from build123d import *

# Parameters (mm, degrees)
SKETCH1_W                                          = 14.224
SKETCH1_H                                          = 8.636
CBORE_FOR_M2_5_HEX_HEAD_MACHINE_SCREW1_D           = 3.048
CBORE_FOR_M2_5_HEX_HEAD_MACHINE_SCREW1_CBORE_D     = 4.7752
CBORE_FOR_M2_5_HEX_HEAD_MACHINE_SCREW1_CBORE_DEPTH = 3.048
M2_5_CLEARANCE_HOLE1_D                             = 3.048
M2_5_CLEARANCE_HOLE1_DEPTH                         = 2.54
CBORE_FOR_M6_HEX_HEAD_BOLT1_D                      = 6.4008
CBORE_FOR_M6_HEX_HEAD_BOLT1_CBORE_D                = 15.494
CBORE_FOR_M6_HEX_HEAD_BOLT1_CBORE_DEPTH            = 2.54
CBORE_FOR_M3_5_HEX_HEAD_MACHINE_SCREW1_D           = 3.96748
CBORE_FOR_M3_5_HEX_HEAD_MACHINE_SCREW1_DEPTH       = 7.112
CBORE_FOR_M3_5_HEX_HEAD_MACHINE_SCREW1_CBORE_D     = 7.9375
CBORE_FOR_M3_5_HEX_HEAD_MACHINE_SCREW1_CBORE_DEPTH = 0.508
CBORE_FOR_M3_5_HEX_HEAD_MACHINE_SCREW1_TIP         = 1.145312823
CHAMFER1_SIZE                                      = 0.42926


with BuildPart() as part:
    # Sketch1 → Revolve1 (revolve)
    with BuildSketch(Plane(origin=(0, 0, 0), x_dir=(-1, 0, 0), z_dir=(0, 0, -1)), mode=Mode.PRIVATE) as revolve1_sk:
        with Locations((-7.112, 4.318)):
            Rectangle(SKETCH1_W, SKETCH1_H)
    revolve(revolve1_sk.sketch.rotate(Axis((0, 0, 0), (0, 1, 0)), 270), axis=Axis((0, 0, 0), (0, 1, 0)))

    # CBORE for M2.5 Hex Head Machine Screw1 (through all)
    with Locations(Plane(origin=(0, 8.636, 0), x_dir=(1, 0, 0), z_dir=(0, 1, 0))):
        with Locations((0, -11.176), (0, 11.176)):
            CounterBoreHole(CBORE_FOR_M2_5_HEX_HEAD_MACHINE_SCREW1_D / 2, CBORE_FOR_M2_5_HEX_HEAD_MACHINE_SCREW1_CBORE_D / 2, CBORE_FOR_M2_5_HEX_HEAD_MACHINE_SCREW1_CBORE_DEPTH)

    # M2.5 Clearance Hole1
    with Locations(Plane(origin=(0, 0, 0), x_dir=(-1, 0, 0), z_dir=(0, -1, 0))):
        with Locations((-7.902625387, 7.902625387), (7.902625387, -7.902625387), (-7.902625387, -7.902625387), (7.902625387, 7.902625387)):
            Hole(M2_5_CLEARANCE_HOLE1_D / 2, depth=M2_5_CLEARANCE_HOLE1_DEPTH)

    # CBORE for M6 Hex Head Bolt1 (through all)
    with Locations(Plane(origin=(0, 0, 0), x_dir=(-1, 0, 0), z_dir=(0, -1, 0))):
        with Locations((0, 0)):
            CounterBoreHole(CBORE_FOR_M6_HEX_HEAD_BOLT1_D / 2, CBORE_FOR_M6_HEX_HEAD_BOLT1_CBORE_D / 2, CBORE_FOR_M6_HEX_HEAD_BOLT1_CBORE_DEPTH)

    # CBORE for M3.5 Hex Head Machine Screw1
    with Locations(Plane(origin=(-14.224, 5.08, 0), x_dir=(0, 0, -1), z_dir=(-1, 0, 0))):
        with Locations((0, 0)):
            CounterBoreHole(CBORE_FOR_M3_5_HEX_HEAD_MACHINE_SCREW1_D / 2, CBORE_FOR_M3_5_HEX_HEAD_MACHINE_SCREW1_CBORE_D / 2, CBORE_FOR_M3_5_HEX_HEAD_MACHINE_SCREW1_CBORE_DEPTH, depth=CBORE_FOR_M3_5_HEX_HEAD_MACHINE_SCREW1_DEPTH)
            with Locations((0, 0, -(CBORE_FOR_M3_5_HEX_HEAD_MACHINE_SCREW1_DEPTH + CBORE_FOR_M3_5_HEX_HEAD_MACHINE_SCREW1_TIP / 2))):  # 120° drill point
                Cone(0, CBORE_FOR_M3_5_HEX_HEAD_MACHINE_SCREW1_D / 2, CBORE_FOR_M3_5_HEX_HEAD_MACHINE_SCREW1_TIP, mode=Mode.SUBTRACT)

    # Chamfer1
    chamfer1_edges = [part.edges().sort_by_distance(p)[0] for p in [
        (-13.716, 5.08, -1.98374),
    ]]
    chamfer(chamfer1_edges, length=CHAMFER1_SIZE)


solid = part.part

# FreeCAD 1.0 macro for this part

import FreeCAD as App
import Part
import Sketcher
from FreeCAD import Vector
Q = App.Units.Quantity


def edges_at(feature, points):
    """Names of the edges that pass closest to the given points."""
    edges = feature.Shape.Edges
    near = lambda p: min(range(len(edges)), key=lambda i: edges[i].distToShape(Part.Vertex(*p))[0])
    return sorted({f"Edge{near(p) + 1}" for p in points})


def add_polygon(sketch, points):
    """Adds a closed chain of lines whose ends are joined by coincident constraints."""
    first, n = sketch.GeometryCount, len(points)
    for a, b in zip(points, points[1:] + points[:1]):
        sketch.addGeometry(Part.LineSegment(App.Vector(*a, 0), App.Vector(*b, 0)), False)
    for i in range(n):
        sketch.addConstraint(Sketcher.Constraint("Coincident", first + i, 2, first + (i + 1) % n, 1))

doc = App.newDocument("Part")
params = doc.addObject("Spreadsheet::Sheet", "Params")
for row, (alias, value) in enumerate([
    ("sketch1_width", "0.56 in"),
    ("sketch1_height", "0.34 in"),
    ("revolution_angle", "360 deg"),
    ("sketch2_diameter", "0.12 in"),
    ("hole_diameter", "0.12 in"),
    ("hole_cbore_diameter", "0.188 in"),
    ("hole_cbore_depth", "0.12 in"),
    ("sketch3_diameter", "0.12 in"),
    ("hole2_diameter", "0.12 in"),
    ("hole2_depth", "0.1 in"),
    ("sketch4_diameter", "0.252 in"),
    ("hole3_diameter", "0.252 in"),
    ("hole3_cbore_diameter", "0.61 in"),
    ("hole3_cbore_depth", "0.1 in"),
    ("hole4_diameter", "0.1562 in"),
    ("hole4_depth", "0.28 in"),
    ("hole4_cbore_diameter", "0.3125 in"),
    ("hole4_cbore_depth", "0.02 in"),
    ("chamfer_size", "0.0169 in"),
], start=1):
    params.set(f"A{row}", alias)
    params.set(f"B{row}", "=" + value)
    params.setAlias(f"B{row}", alias)

body = doc.addObject("PartDesign::Body", "Body")

# Sketch on XY plane
sketch1 = doc.addObject("Sketcher::SketchObject", "Sketch")
body.addObject(sketch1)
sketch1.AttachmentSupport = (doc.XY_Plane, [""])
sketch1.MapMode = "FlatFace"
add_polygon(sketch1, [(14.224, 8.636), (14.224, 0), (0, 0), (0, 8.636)])  # lines 0-3
sketch1.addConstraint([
    Sketcher.Constraint("Vertical", 0),
    Sketcher.Constraint("Horizontal", 1),
    Sketcher.Constraint("Vertical", 2),
    Sketcher.Constraint("Horizontal", 3),
    Sketcher.Constraint("Coincident", 1, 2, -1, 1),
    Sketcher.Constraint("DistanceX", 1, 2, 1, 1, Q("0.56 in")),
    Sketcher.Constraint("DistanceY", 0, 2, 0, 1, Q("0.34 in")),
])
sketch1.setExpression("Constraints[9]", "Params.sketch1_width")
sketch1.setExpression("Constraints[10]", "Params.sketch1_height")
revolution = doc.addObject("PartDesign::Revolution", "Revolution")
body.addObject(revolution)
revolution.Profile = sketch1
revolution.ReferenceAxis = (sketch1, ["V_Axis"])
revolution.setExpression("Angle", "Params.revolution_angle")

# Sketch on XZ plane
sketch2 = doc.addObject("Sketcher::SketchObject", "Sketch001")
body.addObject(sketch2)
sketch2.AttachmentSupport = (doc.XZ_Plane, [""])
sketch2.MapMode = "FlatFace"
sketch2.AttachmentOffset = App.Placement(Vector(0, 0, -0.34 * 25.4), App.Rotation())
sketch2.addGeometry([
    Part.Circle(Vector(0, 11.176, 0), Vector(0, 0, 1), 1.524),
    Part.Circle(Vector(0, -11.176, 0), Vector(0, 0, 1), 1.524),
], False)
sketch2.addConstraint([
    Sketcher.Constraint("Equal", 0, 1),
    Sketcher.Constraint("Symmetric", 0, 3, 1, 3, -1, 1),
    Sketcher.Constraint("PointOnObject", 0, 3, -2),
    Sketcher.Constraint("Diameter", 0, Q("0.12 in")),
    Sketcher.Constraint("DistanceY", -1, 1, 0, 3, Q("0.44 in")),
])
sketch2.setExpression("Constraints[3]", "Params.sketch2_diameter")
doc.recompute()
hole = doc.addObject("PartDesign::Hole", "Hole")
body.addObject(hole)
hole.Profile = sketch2
hole.ThreadType = "None"
hole.setExpression("Diameter", "Params.hole_diameter")
hole.DepthType = "ThroughAll"
hole.HoleCutType = "Counterbore"
hole.setExpression("HoleCutDiameter", "Params.hole_cbore_diameter")
hole.setExpression("HoleCutDepth", "Params.hole_cbore_depth")
hole.Reversed = True

# Sketch on XZ plane
sketch3 = doc.addObject("Sketcher::SketchObject", "Sketch002")
body.addObject(sketch3)
sketch3.AttachmentSupport = (doc.XZ_Plane, [""])
sketch3.MapMode = "FlatFace"
sketch3.addGeometry([
    Part.Circle(Vector(7.902625, -7.902625, 0), Vector(0, 0, 1), 1.524),
    Part.Circle(Vector(-7.902625, 7.902625, 0), Vector(0, 0, 1), 1.524),
    Part.Circle(Vector(7.902625, 7.902625, 0), Vector(0, 0, 1), 1.524),
    Part.Circle(Vector(-7.902625, -7.902625, 0), Vector(0, 0, 1), 1.524),
], False)
sketch3.addConstraint([
    Sketcher.Constraint("Equal", 0, 1),
    Sketcher.Constraint("Equal", 1, 2),
    Sketcher.Constraint("Equal", 2, 3),
    Sketcher.Constraint("Symmetric", 0, 3, 1, 3, -1, 1),
    Sketcher.Constraint("Symmetric", 2, 3, 3, 3, -1, 1),
    Sketcher.Constraint("Symmetric", 1, 3, 2, 3, -2),
    Sketcher.Constraint("Diameter", 0, Q("0.12 in")),
    Sketcher.Constraint("DistanceX", 1, 3, 0, 3, Q("15.805251 mm")),
    Sketcher.Constraint("DistanceY", 0, 3, 1, 3, Q("15.805251 mm")),
])
sketch3.setExpression("Constraints[6]", "Params.sketch3_diameter")
doc.recompute()
hole2 = doc.addObject("PartDesign::Hole", "Hole001")
body.addObject(hole2)
hole2.Profile = sketch3
hole2.ThreadType = "None"
hole2.setExpression("Diameter", "Params.hole2_diameter")
hole2.DepthType = "Dimension"
hole2.setExpression("Depth", "Params.hole2_depth")
hole2.DrillPoint = "Flat"

# Sketch on XZ plane
sketch4 = doc.addObject("Sketcher::SketchObject", "Sketch003")
body.addObject(sketch4)
sketch4.AttachmentSupport = (doc.XZ_Plane, [""])
sketch4.MapMode = "FlatFace"
sketch4.addGeometry(Part.Circle(Vector(0, 0, 0), Vector(0, 0, 1), 3.2004), False)
sketch4.addConstraint([
    Sketcher.Constraint("Coincident", 0, 3, -1, 1),
    Sketcher.Constraint("Diameter", 0, Q("0.252 in")),
])
sketch4.setExpression("Constraints[1]", "Params.sketch4_diameter")
doc.recompute()
hole3 = doc.addObject("PartDesign::Hole", "Hole002")
body.addObject(hole3)
hole3.Profile = sketch4
hole3.ThreadType = "None"
hole3.setExpression("Diameter", "Params.hole3_diameter")
hole3.DepthType = "ThroughAll"
hole3.HoleCutType = "Counterbore"
hole3.setExpression("HoleCutDiameter", "Params.hole3_cbore_diameter")
hole3.setExpression("HoleCutDepth", "Params.hole3_cbore_depth")

# Sketch on YZ plane
sketch5 = doc.addObject("Sketcher::SketchObject", "Sketch004")
body.addObject(sketch5)
sketch5.AttachmentSupport = (doc.YZ_Plane, [""])
sketch5.MapMode = "FlatFace"
sketch5.AttachmentOffset = App.Placement(Vector(0, 0, -0.56 * 25.4), App.Rotation())
sketch5.addGeometry(Part.Circle(Vector(5.08, 0, 0), Vector(0, 0, 1), 1.98374), False)
sketch5.addConstraint([
    Sketcher.Constraint("PointOnObject", 0, 3, -1),
    Sketcher.Constraint("Diameter", 0, Q("0.1562 in")),
    Sketcher.Constraint("DistanceX", -1, 1, 0, 3, Q("0.2 in")),
])
doc.recompute()
hole4 = doc.addObject("PartDesign::Hole", "Hole003")
body.addObject(hole4)
hole4.Profile = sketch5
hole4.ThreadType = "None"
hole4.setExpression("Diameter", "Params.hole4_diameter")
hole4.DepthType = "Dimension"
hole4.setExpression("Depth", "Params.hole4_depth")
hole4.DrillPoint = "Angled"
hole4.DrillPointAngle = 120
hole4.HoleCutType = "Counterbore"
hole4.setExpression("HoleCutDiameter", "Params.hole4_cbore_diameter")
hole4.setExpression("HoleCutDepth", "Params.hole4_cbore_depth")
hole4.Reversed = True
doc.recompute()

chamfer = doc.addObject("PartDesign::Chamfer", "Chamfer")
body.addObject(chamfer)
chamfer.Base = (hole4, edges_at(hole4, [(-13.716, 5.08, -1.984)]))
chamfer.setExpression("Size", "Params.chamfer_size")

doc.recompute()
